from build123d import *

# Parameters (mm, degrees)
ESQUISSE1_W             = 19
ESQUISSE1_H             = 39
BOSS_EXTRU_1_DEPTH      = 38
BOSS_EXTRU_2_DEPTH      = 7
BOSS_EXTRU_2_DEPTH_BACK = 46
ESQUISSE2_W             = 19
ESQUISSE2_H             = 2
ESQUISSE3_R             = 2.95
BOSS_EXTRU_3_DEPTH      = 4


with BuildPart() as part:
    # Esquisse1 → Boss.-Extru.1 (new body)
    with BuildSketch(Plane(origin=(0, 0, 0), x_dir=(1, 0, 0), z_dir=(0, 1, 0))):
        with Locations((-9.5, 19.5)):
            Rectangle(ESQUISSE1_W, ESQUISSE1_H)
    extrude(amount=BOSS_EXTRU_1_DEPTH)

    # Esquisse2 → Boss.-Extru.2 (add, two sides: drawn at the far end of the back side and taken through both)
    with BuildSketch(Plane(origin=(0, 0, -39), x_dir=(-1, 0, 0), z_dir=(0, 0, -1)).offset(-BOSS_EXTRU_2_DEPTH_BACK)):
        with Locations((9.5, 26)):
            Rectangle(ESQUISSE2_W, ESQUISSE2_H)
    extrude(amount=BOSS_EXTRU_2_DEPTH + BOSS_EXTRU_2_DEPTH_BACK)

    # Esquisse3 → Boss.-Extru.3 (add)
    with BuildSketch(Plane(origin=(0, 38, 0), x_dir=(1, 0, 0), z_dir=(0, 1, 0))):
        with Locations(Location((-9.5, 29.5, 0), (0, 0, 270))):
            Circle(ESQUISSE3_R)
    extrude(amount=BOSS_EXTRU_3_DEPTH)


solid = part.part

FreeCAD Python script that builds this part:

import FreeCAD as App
import Part
import Sketcher

V = App.Vector
Q = App.Units.Quantity


def add_polygon(sketch, points):
    """Adds a closed chain of lines whose ends are joined by coincident constraints."""
    first, n = sketch.GeometryCount, len(points)
    for a, b in zip(points, points[1:] + points[:1]):
        sketch.addGeometry(Part.LineSegment(App.Vector(*a, 0), App.Vector(*b, 0)), False)
    for i in range(n):
        sketch.addConstraint(Sketcher.Constraint("Coincident", first + i, 2, first + (i + 1) % n, 1))

doc = App.newDocument("Part")
body = doc.addObject("PartDesign::Body", "Body")

sketch1 = body.newObject("Sketcher::SketchObject", "Sketch")
sketch1.AttachmentSupport = (doc.getObject("XZ_Plane"), [""])
sketch1.MapMode = "FlatFace"
add_polygon(sketch1, [(-19, -39), (-19, 0), (0, 0), (0, -39)])
sketch1.addConstraint([
    Sketcher.Constraint("Vertical", 0),
    Sketcher.Constraint("Horizontal", 1),
    Sketcher.Constraint("Vertical", 2),
    Sketcher.Constraint("Horizontal", 3),
    Sketcher.Constraint("Coincident", 1, 2, -1, 1),
    Sketcher.Constraint("DistanceX", 1, 1, 1, 2, Q("19 mm")),
    Sketcher.Constraint("DistanceY", 0, 1, 0, 2, Q("39 mm")),
])
pad1 = body.newObject("PartDesign::Pad", "Pad")
pad1.Profile = sketch1
pad1.Length = 38
pad1.Reversed = True

sketch2 = body.newObject("Sketcher::SketchObject", "Sketch001")
sketch2.AttachmentSupport = (doc.getObject("XY_Plane"), [""])
sketch2.MapMode = "FlatFace"
sketch2.AttachmentOffset = App.Placement(V(0, 0, -39), App.Rotation())
add_polygon(sketch2, [(0, 27), (0, 25), (-19, 25), (-19, 27)])
sketch2.addConstraint([
    Sketcher.Constraint("Vertical", 0),
    Sketcher.Constraint("Horizontal", 1),
    Sketcher.Constraint("Vertical", 2),
    Sketcher.Constraint("Horizontal", 3),
    Sketcher.Constraint("PointOnObject", 0, 2, -2),
    Sketcher.Constraint("DistanceX", 1, 2, 1, 1, Q("19 mm")),
    Sketcher.Constraint("DistanceY", 0, 2, 0, 1, Q("2 mm")),
    Sketcher.Constraint("DistanceY", -1, 1, 0, 2, Q("25 mm")),
])
pad2 = body.newObject("PartDesign::Pad", "Pad001")
pad2.Profile = sketch2
pad2.Type = "TwoLengths"
pad2.Length = 7
pad2.Length2 = 46
pad2.Reversed = True

sketch3 = body.newObject("Sketcher::SketchObject", "Sketch002")
sketch3.AttachmentSupport = (doc.getObject("XZ_Plane"), [""])
sketch3.MapMode = "FlatFace"
sketch3.AttachmentOffset = App.Placement(V(0, 0, -38), App.Rotation())
sketch3.addGeometry(Part.Circle(V(-9.5, -29.5, 0), V(0, 0, 1), 3), False)
sketch3.addConstraint([
    Sketcher.Constraint("Diameter", 0, Q("5.9 mm")),
    Sketcher.Constraint("DistanceX", 0, 3, -1, 1, Q("9.5 mm")),
    Sketcher.Constraint("DistanceY", 0, 3, -1, 1, Q("29.5 mm")),
])
pad3 = body.newObject("PartDesign::Pad", "Pad002")
pad3.Profile = sketch3
pad3.Length = 4
pad3.Reversed = True

doc.recompute()
